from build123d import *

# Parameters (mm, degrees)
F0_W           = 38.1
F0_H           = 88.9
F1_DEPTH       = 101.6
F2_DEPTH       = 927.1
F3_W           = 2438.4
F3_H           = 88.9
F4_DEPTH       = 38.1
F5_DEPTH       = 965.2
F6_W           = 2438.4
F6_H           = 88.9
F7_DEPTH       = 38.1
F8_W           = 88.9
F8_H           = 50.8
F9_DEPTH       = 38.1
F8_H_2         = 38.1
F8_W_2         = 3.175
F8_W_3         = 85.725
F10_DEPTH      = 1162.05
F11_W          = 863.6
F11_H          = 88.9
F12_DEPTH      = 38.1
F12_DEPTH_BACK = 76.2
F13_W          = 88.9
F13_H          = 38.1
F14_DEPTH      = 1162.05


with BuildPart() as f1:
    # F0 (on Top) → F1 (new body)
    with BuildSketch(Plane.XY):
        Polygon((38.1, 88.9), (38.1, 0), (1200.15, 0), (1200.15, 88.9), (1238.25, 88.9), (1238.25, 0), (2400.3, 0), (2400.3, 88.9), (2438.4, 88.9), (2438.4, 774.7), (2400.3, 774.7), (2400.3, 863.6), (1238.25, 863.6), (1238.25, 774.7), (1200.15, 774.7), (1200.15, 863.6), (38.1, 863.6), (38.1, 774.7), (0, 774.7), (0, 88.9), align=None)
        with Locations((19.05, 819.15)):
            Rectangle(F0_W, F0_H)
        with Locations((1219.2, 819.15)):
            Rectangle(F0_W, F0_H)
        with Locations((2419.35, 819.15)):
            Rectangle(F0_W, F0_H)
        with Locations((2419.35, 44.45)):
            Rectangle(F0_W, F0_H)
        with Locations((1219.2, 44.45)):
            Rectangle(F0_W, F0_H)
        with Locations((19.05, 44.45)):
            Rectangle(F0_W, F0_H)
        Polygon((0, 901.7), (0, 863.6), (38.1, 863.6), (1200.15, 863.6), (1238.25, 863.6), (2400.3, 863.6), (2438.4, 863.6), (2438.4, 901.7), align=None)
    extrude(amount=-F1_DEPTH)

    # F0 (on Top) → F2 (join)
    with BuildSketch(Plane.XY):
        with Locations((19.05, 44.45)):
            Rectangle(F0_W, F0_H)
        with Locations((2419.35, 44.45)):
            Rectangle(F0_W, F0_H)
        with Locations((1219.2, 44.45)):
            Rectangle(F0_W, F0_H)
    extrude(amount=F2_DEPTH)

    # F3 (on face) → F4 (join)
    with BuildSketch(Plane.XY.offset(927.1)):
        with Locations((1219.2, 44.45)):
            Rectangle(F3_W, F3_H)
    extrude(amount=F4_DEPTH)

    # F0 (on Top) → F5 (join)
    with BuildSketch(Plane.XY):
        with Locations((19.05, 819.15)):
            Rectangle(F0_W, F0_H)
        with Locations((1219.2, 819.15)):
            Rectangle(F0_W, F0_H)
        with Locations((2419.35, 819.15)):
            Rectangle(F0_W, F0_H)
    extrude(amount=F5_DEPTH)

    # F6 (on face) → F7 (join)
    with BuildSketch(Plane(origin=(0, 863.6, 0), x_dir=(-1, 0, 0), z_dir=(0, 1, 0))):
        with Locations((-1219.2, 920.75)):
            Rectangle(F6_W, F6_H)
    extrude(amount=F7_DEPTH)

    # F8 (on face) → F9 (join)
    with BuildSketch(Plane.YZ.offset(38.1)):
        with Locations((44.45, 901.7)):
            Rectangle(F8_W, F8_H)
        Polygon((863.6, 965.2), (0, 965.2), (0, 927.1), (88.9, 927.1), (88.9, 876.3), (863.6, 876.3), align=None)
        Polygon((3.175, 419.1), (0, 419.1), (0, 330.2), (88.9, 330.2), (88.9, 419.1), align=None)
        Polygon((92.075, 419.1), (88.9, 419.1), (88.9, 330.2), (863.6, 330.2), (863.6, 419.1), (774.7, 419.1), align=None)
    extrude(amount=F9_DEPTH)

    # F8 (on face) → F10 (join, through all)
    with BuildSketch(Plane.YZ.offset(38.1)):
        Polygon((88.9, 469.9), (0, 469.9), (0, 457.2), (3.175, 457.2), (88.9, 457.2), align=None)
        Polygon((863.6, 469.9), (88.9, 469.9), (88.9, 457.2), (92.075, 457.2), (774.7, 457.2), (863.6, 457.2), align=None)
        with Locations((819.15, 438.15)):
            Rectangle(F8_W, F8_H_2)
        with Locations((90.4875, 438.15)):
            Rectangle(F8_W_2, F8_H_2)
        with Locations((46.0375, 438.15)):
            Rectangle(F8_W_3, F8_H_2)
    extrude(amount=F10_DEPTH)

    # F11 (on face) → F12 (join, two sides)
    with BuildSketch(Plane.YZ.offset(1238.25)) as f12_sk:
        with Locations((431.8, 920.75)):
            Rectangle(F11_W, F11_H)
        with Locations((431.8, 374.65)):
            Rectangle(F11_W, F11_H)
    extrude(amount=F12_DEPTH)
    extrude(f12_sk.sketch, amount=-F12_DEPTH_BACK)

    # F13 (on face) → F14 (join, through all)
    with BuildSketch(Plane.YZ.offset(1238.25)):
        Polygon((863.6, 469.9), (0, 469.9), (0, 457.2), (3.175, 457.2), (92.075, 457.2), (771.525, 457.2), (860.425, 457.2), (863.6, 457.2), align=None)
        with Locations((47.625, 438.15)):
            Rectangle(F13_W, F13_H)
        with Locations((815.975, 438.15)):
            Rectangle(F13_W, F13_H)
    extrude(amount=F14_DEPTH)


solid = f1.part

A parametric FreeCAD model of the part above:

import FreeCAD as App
import Part
import Sketcher
Q = App.Units.Quantity


def add_polygon(sketch, points):
    """Adds a closed chain of lines whose ends are joined by coincident constraints."""
    first, n = sketch.GeometryCount, len(points)
    for a, b in zip(points, points[1:] + points[:1]):
        sketch.addGeometry(Part.LineSegment(App.Vector(*a, 0), App.Vector(*b, 0)), False)
    for i in range(n):
        sketch.addConstraint(Sketcher.Constraint("Coincident", first + i, 2, first + (i + 1) % n, 1))

doc = App.newDocument("Part")
params = doc.addObject("Spreadsheet::Sheet", "Params")
for row, (alias, value) in enumerate([
    ("sketch1_width", "96 in"),
    ("sketch1_height", "35.5 in"),
    ("pad1_length", "4 in"),
    ("sketch2_width", "1.5 in"),
    ("sketch2_height", "3.5 in"),
    ("pad2_length", "36.5 in"),
    ("sketch3_width", "96 in"),
    ("sketch3_height", "3.5 in"),
    ("pad3_length", "1.5 in"),
    ("sketch4_width", "1.5 in"),
    ("sketch4_height", "3.5 in"),
    ("pad4_length", "38 in"),
    ("sketch5_width", "96 in"),
    ("sketch5_height", "3.5 in"),
    ("pad5_length", "1.5 in"),
    ("sketch6_width", "34 in"),
    ("sketch6_height", "3.5 in"),
    ("pad6_length", "1.5 in"),
    ("sketch7_width", "34 in"),
    ("sketch7_height", "2 in"),
    ("sketch7_width2", "3.5 in"),
    ("sketch7_height2", "0.5 in"),
    ("sketch7_width3", "0.125 in"),
    ("pad7_length", "45.75 in"),
    ("sketch8_width", "34 in"),
    ("sketch8_height", "3.5 in"),
    ("pad8_length", "1.5 in"),
    ("pad8_length2", "3 in"),
    ("sketch9_width", "34 in"),
    ("sketch9_width2", "3.5 in"),
    ("sketch9_height", "0.5 in"),
    ("sketch9_height2", "1.5 in"),
    ("sketch9_width3", "26.75 in"),
    ("pad9_length", "45.75 in"),
], start=1):
    params.set(f"A{row}", alias)
    params.set(f"B{row}", "=" + value)
    params.setAlias(f"B{row}", alias)

body = doc.addObject("PartDesign::Body", "Body")

# Sketch on XY plane
sketch1 = body.newObject("Sketcher::SketchObject", "Sketch")
sketch1.AttachmentSupport = (doc.getObject("XY_Plane"), [""])
sketch1.MapMode = "FlatFace"
add_polygon(sketch1, [(2438, 0), (2438, 902), (0, 902), (0, 0)])  # lines 0-3
sketch1.addConstraint([
    Sketcher.Constraint("Vertical", 0),
    Sketcher.Constraint("Horizontal", 1),
    Sketcher.Constraint("Vertical", 2),
    Sketcher.Constraint("Horizontal", 3),
    Sketcher.Constraint("Coincident", 2, 2, -1, 1),
    Sketcher.Constraint("DistanceX", 1, 2, 1, 1, Q("96 in")),
    Sketcher.Constraint("DistanceY", 0, 1, 0, 2, Q("35.5 in")),
])
sketch1.setExpression("Constraints[9]", "Params.sketch1_width")
sketch1.setExpression("Constraints[10]", "Params.sketch1_height")
pad1 = body.newObject("PartDesign::Pad", "Pad")
pad1.Profile = sketch1
pad1.setExpression("Length", "Params.pad1_length")
pad1.Reversed = True

# Sketch on XY plane
sketch2 = body.newObject("Sketcher::SketchObject", "Sketch001")
sketch2.AttachmentSupport = (doc.getObject("XY_Plane"), [""])
sketch2.MapMode = "FlatFace"
add_polygon(sketch2, [(0, 89), (0, 0), (38, 0), (38, 89)])  # lines 0-3
add_polygon(sketch2, [(2400, 89), (2400, 0), (2438, 0), (2438, 89)])  # lines 4-7
add_polygon(sketch2, [(1200, 89), (1200, 0), (1238, 0), (1238, 89)])  # lines 8-11
sketch2.addConstraint([
    Sketcher.Constraint("Vertical", 0),
    Sketcher.Constraint("Horizontal", 1),
    Sketcher.Constraint("Vertical", 2),
    Sketcher.Constraint("Horizontal", 3),
    Sketcher.Constraint("Vertical", 4),
    Sketcher.Constraint("Horizontal", 5),
    Sketcher.Constraint("Vertical", 6),
    Sketcher.Constraint("Horizontal", 7),
    Sketcher.Constraint("Vertical", 8),
    Sketcher.Constraint("Horizontal", 9),
    Sketcher.Constraint("Vertical", 10),
    Sketcher.Constraint("Horizontal", 11),
    Sketcher.Constraint("Coincident", 0, 2, -1, 1),
    Sketcher.Constraint("PointOnObject", 4, 2, -1),
    Sketcher.Constraint("PointOnObject", 8, 2, -1),
    Sketcher.Constraint("Horizontal", 3, 2, 6, 2),
    Sketcher.Constraint("Horizontal", 7, 2, 10, 2),
    Sketcher.Constraint("Equal", 3, 5),
    Sketcher.Constraint("Equal", 7, 9),
    Sketcher.Constraint("DistanceX", 1, 1, 1, 2, Q("1.5 in")),
    Sketcher.Constraint("DistanceY", 0, 2, 0, 1, Q("3.5 in")),
    Sketcher.Constraint("DistanceX", -1, 1, 5, 2, Q("96 in")),
    Sketcher.Constraint("DistanceX", -1, 1, 8, 2, Q("47.25 in")),
])
sketch2.setExpression("Constraints[31]", "Params.sketch2_width")
sketch2.setExpression("Constraints[32]", "Params.sketch2_height")
pad2 = body.newObject("PartDesign::Pad", "Pad001")
pad2.Profile = sketch2
pad2.setExpression("Length", "Params.pad2_length")

# Sketch on XY plane
sketch3 = body.newObject("Sketcher::SketchObject", "Sketch002")
sketch3.AttachmentSupport = (doc.getObject("XY_Plane"), [""])
sketch3.MapMode = "FlatFace"
sketch3.AttachmentOffset = App.Placement(App.Vector(0, 0, 36.5 * 25.4), App.Rotation())
add_polygon(sketch3, [(0, 89), (0, 0), (2438, 0), (2438, 89)])  # lines 0-3
sketch3.addConstraint([
    Sketcher.Constraint("Vertical", 0),
    Sketcher.Constraint("Horizontal", 1),
    Sketcher.Constraint("Vertical", 2),
    Sketcher.Constraint("Horizontal", 3),
    Sketcher.Constraint("Coincident", 0, 2, -1, 1),
    Sketcher.Constraint("DistanceX", 1, 1, 1, 2, Q("96 in")),
    Sketcher.Constraint("DistanceY", 0, 2, 0, 1, Q("3.5 in")),
])
sketch3.setExpression("Constraints[9]", "Params.sketch3_width")
sketch3.setExpression("Constraints[10]", "Params.sketch3_height")
pad3 = body.newObject("PartDesign::Pad", "Pad002")
pad3.Profile = sketch3
pad3.setExpression("Length", "Params.pad3_length")

# Sketch on XY plane
sketch4 = body.newObject("Sketcher::SketchObject", "Sketch003")
sketch4.AttachmentSupport = (doc.getObject("XY_Plane"), [""])
sketch4.MapMode = "FlatFace"
add_polygon(sketch4, [(0, 864), (0, 775), (38, 775), (38, 864)])  # lines 0-3
add_polygon(sketch4, [(1200, 864), (1200, 775), (1238, 775), (1238, 864)])  # lines 4-7
add_polygon(sketch4, [(2400, 864), (2400, 775), (2438, 775), (2438, 864)])  # lines 8-11
sketch4.addConstraint([
    Sketcher.Constraint("Vertical", 0),
    Sketcher.Constraint("Horizontal", 1),
    Sketcher.Constraint("Vertical", 2),
    Sketcher.Constraint("Horizontal", 3),
    Sketcher.Constraint("Vertical", 4),
    Sketcher.Constraint("Horizontal", 5),
    Sketcher.Constraint("Vertical", 6),
    Sketcher.Constraint("Horizontal", 7),
    Sketcher.Constraint("Vertical", 8),
    Sketcher.Constraint("Horizontal", 9),
    Sketcher.Constraint("Vertical", 10),
    Sketcher.Constraint("Horizontal", 11),
    Sketcher.Constraint("PointOnObject", 0, 2, -2),
    Sketcher.Constraint("Horizontal", 1, 2, 4, 2),
    Sketcher.Constraint("Horizontal", 3, 2, 6, 2),
    Sketcher.Constraint("Horizontal", 5, 2, 8, 2),
    Sketcher.Constraint("Horizontal", 7, 2, 10, 2),
    Sketcher.Constraint("Equal", 3, 5),
    Sketcher.Constraint("Equal", 7, 9),
    Sketcher.Constraint("DistanceX", 1, 1, 1, 2, Q("1.5 in")),
    Sketcher.Constraint("DistanceY", 0, 2, 0, 1, Q("3.5 in")),
    Sketcher.Constraint("DistanceY", -1, 1, 2, 2, Q("34 in")),
    Sketcher.Constraint("DistanceX", -1, 1, 9, 2, Q("96 in")),
    Sketcher.Constraint("DistanceX", -1, 1, 4, 2, Q("47.25 in")),
])
sketch4.setExpression("Constraints[31]", "Params.sketch4_width")
sketch4.setExpression("Constraints[32]", "Params.sketch4_height")
pad4 = body.newObject("PartDesign::Pad", "Pad003")
pad4.Profile = sketch4
pad4.setExpression("Length", "Params.pad4_length")

# Sketch on XZ plane
sketch5 = body.newObject("Sketcher::SketchObject", "Sketch004")
sketch5.AttachmentSupport = (doc.getObject("XZ_Plane"), [""])
sketch5.MapMode = "FlatFace"
sketch5.AttachmentOffset = App.Placement(App.Vector(0, 0, -34 * 25.4), App.Rotation())
add_polygon(sketch5, [(2438, 965), (2438, 876), (0, 876), (0, 965)])  # lines 0-3
sketch5.addConstraint([
    Sketcher.Constraint("Vertical", 0),
    Sketcher.Constraint("Horizontal", 1),
    Sketcher.Constraint("Vertical", 2),
    Sketcher.Constraint("Horizontal", 3),
    Sketcher.Constraint("PointOnObject", 1, 2, -2),
    Sketcher.Constraint("DistanceX", 1, 2, 1, 1, Q("96 in")),
    Sketcher.Constraint("DistanceY", 0, 2, 0, 1, Q("3.5 in")),
    Sketcher.Constraint("DistanceY", -1, 1, 2, 2, Q("38 in")),
])
sketch5.setExpression("Constraints[9]", "Params.sketch5_width")
sketch5.setExpression("Constraints[10]", "Params.sketch5_height")
pad5 = body.newObject("PartDesign::Pad", "Pad004")
pad5.Profile = sketch5
pad5.setExpression("Length", "Params.pad5_length")
pad5.Reversed = True

# Sketch on YZ plane
sketch6 = body.newObject("Sketcher::SketchObject", "Sketch005")
sketch6.AttachmentSupport = (doc.getObject("YZ_Plane"), [""])
sketch6.MapMode = "FlatFace"
sketch6.AttachmentOffset = App.Placement(App.Vector(0, 0, 1.5 * 25.4), App.Rotation())
add_polygon(sketch6, [(0, 876), (864, 876), (864, 965), (0, 965)])  # lines 0-3
add_polygon(sketch6, [(0, 419), (0, 330), (864, 330), (864, 419)])  # lines 4-7
sketch6.addConstraint([
    Sketcher.Constraint("Horizontal", 0),
    Sketcher.Constraint("Vertical", 1),
    Sketcher.Constraint("Horizontal", 2),
    Sketcher.Constraint("Vertical", 3),
    Sketcher.Constraint("Vertical", 4),
    Sketcher.Constraint("Horizontal", 5),
    Sketcher.Constraint("Vertical", 6),
    Sketcher.Constraint("Horizontal", 7),
    Sketcher.Constraint("PointOnObject", 2, 2, -2),
    Sketcher.Constraint("PointOnObject", 4, 2, -2),
    Sketcher.Constraint("Vertical", 1, 2, 5, 2),
    Sketcher.Constraint("Equal", 3, 4),
    Sketcher.Constraint("DistanceX", 0, 1, 0, 2, Q("34 in")),
    Sketcher.Constraint("DistanceY", 1, 1, 1, 2, Q("3.5 in")),
    Sketcher.Constraint("DistanceY", -1, 1, 1, 2, Q("38 in")),
    Sketcher.Constraint("DistanceY", -1, 1, 4, 2, Q("13 in")),
])
sketch6.setExpression("Constraints[20]", "Params.sketch6_width")
sketch6.setExpression("Constraints[21]", "Params.sketch6_height")
pad6 = body.newObject("PartDesign::Pad", "Pad005")
pad6.Profile = sketch6
pad6.setExpression("Length", "Params.pad6_length")

# Sketch on YZ plane
sketch7 = body.newObject("Sketcher::SketchObject", "Sketch006")
sketch7.AttachmentSupport = (doc.getObject("YZ_Plane"), [""])
sketch7.MapMode = "FlatFace"
sketch7.AttachmentOffset = App.Placement(App.Vector(0, 0, 1.5 * 25.4), App.Rotation())
add_polygon(sketch7, [(0, 469.9), (0, 457.2), (3.2, 457.2), (3.2, 419.1), (92.1, 419.1), (92.1, 457.2), (774.7, 457.2), (774.7, 419.1), (863.6, 419.1), (863.6, 469.9)])  # lines 0-9
sketch7.addConstraint([
    Sketcher.Constraint("Vertical", 0),
    Sketcher.Constraint("Horizontal", 1),
    Sketcher.Constraint("Vertical", 2),
    Sketcher.Constraint("Horizontal", 3),
    Sketcher.Constraint("Vertical", 4),
    Sketcher.Constraint("Horizontal", 5),
    Sketcher.Constraint("Vertical", 6),
    Sketcher.Constraint("Horizontal", 7),
    Sketcher.Constraint("Vertical", 8),
    Sketcher.Constraint("Horizontal", 9),
    Sketcher.Constraint("PointOnObject", 0, 2, -2),
    Sketcher.Constraint("Horizontal", 1, 2, 4, 2),
    Sketcher.Constraint("Horizontal", 3, 2, 6, 2),
    Sketcher.Constraint("Equal", 3, 7),
    Sketcher.Constraint("DistanceX", 9, 2, 9, 1, Q("34 in")),
    Sketcher.Constraint("DistanceY", 8, 1, 8, 2, Q("2 in")),
    Sketcher.Constraint("DistanceX", 3, 1, 3, 2, Q("3.5 in")),
    Sketcher.Constraint("DistanceY", 0, 2, 0, 1, Q("0.5 in")),
    Sketcher.Constraint("DistanceY", -1, 1, 0, 2, Q("18 in")),
    Sketcher.Constraint("DistanceX", 1, 1, 1, 2, Q("0.125 in")),
])
sketch7.setExpression("Constraints[24]", "Params.sketch7_width")
sketch7.setExpression("Constraints[25]", "Params.sketch7_height")
sketch7.setExpression("Constraints[26]", "Params.sketch7_width2")
sketch7.setExpression("Constraints[27]", "Params.sketch7_height2")
sketch7.setExpression("Constraints[29]", "Params.sketch7_width3")
pad7 = body.newObject("PartDesign::Pad", "Pad006")
pad7.Profile = sketch7
pad7.setExpression("Length", "Params.pad7_length")

# Sketch on YZ plane
sketch8 = body.newObject("Sketcher::SketchObject", "Sketch007")
sketch8.AttachmentSupport = (doc.getObject("YZ_Plane"), [""])
sketch8.MapMode = "FlatFace"
sketch8.AttachmentOffset = App.Placement(App.Vector(0, 0, 48.75 * 25.4), App.Rotation())
add_polygon(sketch8, [(0, 965), (0, 876), (864, 876), (864, 965)])  # lines 0-3
add_polygon(sketch8, [(0, 419), (0, 330), (864, 330), (864, 419)])  # lines 4-7
sketch8.addConstraint([
    Sketcher.Constraint("Vertical", 0),
    Sketcher.Constraint("Horizontal", 1),
    Sketcher.Constraint("Vertical", 2),
    Sketcher.Constraint("Horizontal", 3),
    Sketcher.Constraint("Vertical", 4),
    Sketcher.Constraint("Horizontal", 5),
    Sketcher.Constraint("Vertical", 6),
    Sketcher.Constraint("Horizontal", 7),
    Sketcher.Constraint("PointOnObject", 0, 2, -2),
    Sketcher.Constraint("PointOnObject", 4, 2, -2),
    Sketcher.Constraint("Vertical", 2, 2, 5, 2),
    Sketcher.Constraint("Equal", 2, 4),
    Sketcher.Constraint("DistanceX", 1, 1, 1, 2, Q("34 in")),
    Sketcher.Constraint("DistanceY", 0, 2, 0, 1, Q("3.5 in")),
    Sketcher.Constraint("DistanceY", -1, 1, 2, 2, Q("38 in")),
    Sketcher.Constraint("DistanceY", -1, 1, 4, 2, Q("13 in")),
])
sketch8.setExpression("Constraints[20]", "Params.sketch8_width")
sketch8.setExpression("Constraints[21]", "Params.sketch8_height")
pad8 = body.newObject("PartDesign::Pad", "Pad007")
pad8.Profile = sketch8
pad8.Type = "TwoLengths"
pad8.setExpression("Length", "Params.pad8_length")
pad8.setExpression("Length2", "Params.pad8_length2")

# Sketch on YZ plane
sketch9 = body.newObject("Sketcher::SketchObject", "Sketch008")
sketch9.AttachmentSupport = (doc.getObject("YZ_Plane"), [""])
sketch9.MapMode = "FlatFace"
sketch9.AttachmentOffset = App.Placement(App.Vector(0, 0, 48.75 * 25.4), App.Rotation())
add_polygon(sketch9, [(863.6, 469.9), (0, 469.9), (0, 457.2), (3.2, 457.2), (3.2, 419.1), (92.1, 419.1), (92.1, 457.2), (771.5, 457.2), (771.5, 419.1), (860.4, 419.1), (860.4, 457.2), (863.6, 457.2)])  # lines 0-11
sketch9.addConstraint([
    Sketcher.Constraint("Horizontal", 0),
    Sketcher.Constraint("Vertical", 1),
    Sketcher.Constraint("Horizontal", 2),
    Sketcher.Constraint("Vertical", 3),
    Sketcher.Constraint("Horizontal", 4),
    Sketcher.Constraint("Vertical", 5),
    Sketcher.Constraint("Horizontal", 6),
    Sketcher.Constraint("Vertical", 7),
    Sketcher.Constraint("Horizontal", 8),
    Sketcher.Constraint("Vertical", 9),
    Sketcher.Constraint("Horizontal", 10),
    Sketcher.Constraint("Vertical", 11),
    Sketcher.Constraint("PointOnObject", 0, 2, -2),
    Sketcher.Constraint("Horizontal", 2, 2, 5, 2),
    Sketcher.Constraint("Horizontal", 4, 2, 7, 2),
    Sketcher.Constraint("Horizontal", 6, 2, 9, 2),
    Sketcher.Constraint("Equal", 4, 8),
    Sketcher.Constraint("Equal", 2, 10),
    Sketcher.Constraint("DistanceX", 0, 2, 0, 1, Q("34 in")),
    Sketcher.Constraint("DistanceX", 4, 1, 4, 2, Q("3.5 in")),
    Sketcher.Constraint("DistanceY", 1, 2, 1, 1, Q("0.5 in")),
    Sketcher.Constraint("DistanceY", 3, 2, 3, 1, Q("1.5 in")),
    Sketcher.Constraint("DistanceY", -1, 1, 1, 2, Q("18 in")),
    Sketcher.Constraint("DistanceX", 6, 1, 6, 2, Q("26.75 in")),
])
sketch9.setExpression("Constraints[30]", "Params.sketch9_width")
sketch9.setExpression("Constraints[31]", "Params.sketch9_width2")
sketch9.setExpression("Constraints[32]", "Params.sketch9_height")
sketch9.setExpression("Constraints[33]", "Params.sketch9_height2")
sketch9.setExpression("Constraints[35]", "Params.sketch9_width3")
pad9 = body.newObject("PartDesign::Pad", "Pad008")
pad9.Profile = sketch9
pad9.setExpression("Length", "Params.pad9_length")

doc.recompute()
